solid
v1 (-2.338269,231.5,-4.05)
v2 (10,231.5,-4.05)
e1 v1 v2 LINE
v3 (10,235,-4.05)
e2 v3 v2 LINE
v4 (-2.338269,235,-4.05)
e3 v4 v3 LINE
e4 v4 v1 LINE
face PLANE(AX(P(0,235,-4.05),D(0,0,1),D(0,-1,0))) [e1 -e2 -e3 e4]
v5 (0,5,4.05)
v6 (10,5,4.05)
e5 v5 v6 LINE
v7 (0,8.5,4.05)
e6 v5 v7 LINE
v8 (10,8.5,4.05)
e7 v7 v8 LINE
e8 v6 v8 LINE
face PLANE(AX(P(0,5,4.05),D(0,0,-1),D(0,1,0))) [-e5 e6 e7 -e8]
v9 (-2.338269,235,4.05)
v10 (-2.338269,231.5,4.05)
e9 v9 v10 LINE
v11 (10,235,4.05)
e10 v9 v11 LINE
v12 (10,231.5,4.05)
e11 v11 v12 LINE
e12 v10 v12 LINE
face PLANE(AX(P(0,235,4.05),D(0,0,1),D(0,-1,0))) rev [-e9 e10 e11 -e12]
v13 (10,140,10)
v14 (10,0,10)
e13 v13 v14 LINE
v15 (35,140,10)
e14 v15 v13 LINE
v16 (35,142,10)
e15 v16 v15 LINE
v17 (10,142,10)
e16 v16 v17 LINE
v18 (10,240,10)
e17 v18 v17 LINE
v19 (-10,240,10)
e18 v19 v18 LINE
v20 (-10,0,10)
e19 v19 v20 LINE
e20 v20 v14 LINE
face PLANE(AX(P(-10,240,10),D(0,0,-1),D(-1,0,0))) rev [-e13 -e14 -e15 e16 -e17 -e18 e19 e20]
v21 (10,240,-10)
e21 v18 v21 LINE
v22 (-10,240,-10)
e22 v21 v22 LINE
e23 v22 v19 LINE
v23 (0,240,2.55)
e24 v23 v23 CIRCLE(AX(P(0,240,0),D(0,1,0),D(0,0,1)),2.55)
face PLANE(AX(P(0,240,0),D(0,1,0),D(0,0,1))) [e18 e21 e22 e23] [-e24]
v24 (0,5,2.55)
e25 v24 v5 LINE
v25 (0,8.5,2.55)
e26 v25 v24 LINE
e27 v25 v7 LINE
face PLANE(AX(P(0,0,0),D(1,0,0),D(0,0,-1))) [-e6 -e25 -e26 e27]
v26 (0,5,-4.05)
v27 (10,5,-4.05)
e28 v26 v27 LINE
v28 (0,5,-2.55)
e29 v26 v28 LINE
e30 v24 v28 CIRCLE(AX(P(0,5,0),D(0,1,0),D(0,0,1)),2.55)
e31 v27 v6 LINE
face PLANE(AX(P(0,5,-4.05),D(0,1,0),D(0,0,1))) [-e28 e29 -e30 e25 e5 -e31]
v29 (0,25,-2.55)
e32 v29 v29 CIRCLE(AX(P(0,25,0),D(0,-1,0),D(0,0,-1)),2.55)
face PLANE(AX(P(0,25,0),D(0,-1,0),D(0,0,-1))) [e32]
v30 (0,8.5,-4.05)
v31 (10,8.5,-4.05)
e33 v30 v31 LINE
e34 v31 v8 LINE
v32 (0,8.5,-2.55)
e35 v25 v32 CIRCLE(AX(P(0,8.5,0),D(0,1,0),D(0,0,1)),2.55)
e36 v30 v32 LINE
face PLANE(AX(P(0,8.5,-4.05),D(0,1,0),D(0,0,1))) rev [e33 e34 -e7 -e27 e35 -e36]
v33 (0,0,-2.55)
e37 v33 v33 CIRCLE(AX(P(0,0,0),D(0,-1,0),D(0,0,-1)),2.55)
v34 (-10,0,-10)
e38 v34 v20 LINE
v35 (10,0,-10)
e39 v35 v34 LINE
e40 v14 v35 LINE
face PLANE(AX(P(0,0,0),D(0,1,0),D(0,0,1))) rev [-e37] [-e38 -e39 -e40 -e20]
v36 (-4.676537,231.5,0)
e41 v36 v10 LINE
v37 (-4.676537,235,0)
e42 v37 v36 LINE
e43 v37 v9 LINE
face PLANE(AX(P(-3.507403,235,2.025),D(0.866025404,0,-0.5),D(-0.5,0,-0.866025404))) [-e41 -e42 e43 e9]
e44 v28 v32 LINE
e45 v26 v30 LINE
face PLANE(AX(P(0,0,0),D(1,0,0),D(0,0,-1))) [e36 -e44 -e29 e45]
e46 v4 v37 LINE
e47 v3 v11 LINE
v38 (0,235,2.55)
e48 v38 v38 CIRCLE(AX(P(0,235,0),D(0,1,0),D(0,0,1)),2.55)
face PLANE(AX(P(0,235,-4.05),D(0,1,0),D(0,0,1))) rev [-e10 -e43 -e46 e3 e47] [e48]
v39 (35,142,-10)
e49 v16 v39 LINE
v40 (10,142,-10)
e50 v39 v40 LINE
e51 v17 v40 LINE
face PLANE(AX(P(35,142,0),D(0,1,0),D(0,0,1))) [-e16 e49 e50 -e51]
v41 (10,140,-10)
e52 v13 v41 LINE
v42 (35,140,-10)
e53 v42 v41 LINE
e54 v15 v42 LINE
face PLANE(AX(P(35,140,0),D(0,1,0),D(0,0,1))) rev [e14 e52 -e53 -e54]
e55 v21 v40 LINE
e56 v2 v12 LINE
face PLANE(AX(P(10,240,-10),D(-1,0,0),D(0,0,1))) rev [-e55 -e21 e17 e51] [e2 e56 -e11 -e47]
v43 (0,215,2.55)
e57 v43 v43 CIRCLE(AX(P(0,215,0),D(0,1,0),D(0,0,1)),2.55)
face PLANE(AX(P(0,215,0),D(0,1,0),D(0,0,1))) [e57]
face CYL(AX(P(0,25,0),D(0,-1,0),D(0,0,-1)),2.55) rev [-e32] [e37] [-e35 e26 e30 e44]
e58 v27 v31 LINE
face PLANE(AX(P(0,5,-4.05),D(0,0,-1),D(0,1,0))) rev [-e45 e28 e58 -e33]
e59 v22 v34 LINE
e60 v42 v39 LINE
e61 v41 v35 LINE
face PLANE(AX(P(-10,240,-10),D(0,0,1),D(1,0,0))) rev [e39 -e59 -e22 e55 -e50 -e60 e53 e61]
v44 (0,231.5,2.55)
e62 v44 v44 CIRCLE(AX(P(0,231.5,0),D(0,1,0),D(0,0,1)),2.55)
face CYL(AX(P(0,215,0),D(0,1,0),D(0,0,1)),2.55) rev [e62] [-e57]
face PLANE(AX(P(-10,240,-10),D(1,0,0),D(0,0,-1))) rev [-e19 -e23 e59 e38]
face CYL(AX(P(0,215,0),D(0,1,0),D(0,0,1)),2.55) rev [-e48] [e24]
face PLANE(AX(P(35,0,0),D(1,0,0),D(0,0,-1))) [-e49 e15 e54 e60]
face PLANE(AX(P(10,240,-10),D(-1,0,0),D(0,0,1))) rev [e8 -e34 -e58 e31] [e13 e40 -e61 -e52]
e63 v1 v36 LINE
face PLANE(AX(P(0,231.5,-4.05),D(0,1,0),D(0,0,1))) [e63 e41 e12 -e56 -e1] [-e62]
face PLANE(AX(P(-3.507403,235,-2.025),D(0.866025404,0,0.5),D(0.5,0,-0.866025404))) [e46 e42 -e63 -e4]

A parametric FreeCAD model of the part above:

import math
import FreeCAD as App
import Part
import Sketcher
from FreeCAD import Vector
Q = App.Units.Quantity


def add_polygon(sketch, points):
    """Adds a closed chain of lines whose ends are joined by coincident constraints."""
    first, n = sketch.GeometryCount, len(points)
    for a, b in zip(points, points[1:] + points[:1]):
        sketch.addGeometry(Part.LineSegment(App.Vector(*a, 0), App.Vector(*b, 0)), False)
    for i in range(n):
        sketch.addConstraint(Sketcher.Constraint("Coincident", first + i, 2, first + (i + 1) % n, 1))

doc = App.newDocument("Part")
params = doc.addObject("Spreadsheet::Sheet", "Params")
for row, (alias, value) in enumerate([
    ("sketch1_width", "20 mm"),
    ("pad1_length", "240 mm"),
    ("sketch2_width", "3.5 mm"),
    ("sketch2_height", "8.1 mm"),
    ("pocket1_length", "10 mm"),
    ("sketch3_diameter", "5.1 mm"),
    ("pocket2_length", "25 mm"),
    ("sketch4_radius", "2.55 mm"),
    ("sketch4_height", "1.5 mm"),
    ("pocket3_length", "3.5 mm"),
    ("sketch5_diameter", "5.1 mm"),
    ("pocket4_length", "25 mm"),
    ("sketch6_width", "2 mm"),
    ("sketch6_height", "20 mm"),
    ("pad2_length", "25 mm"),
], start=1):
    params.set(f"A{row}", alias)
    params.set(f"B{row}", "=" + value)
    params.setAlias(f"B{row}", alias)

body = doc.addObject("PartDesign::Body", "Body")

# Sketch on XZ plane
sketch1 = body.newObject("Sketcher::SketchObject", "Sketch")
sketch1.AttachmentSupport = (doc.getObject("XZ_Plane"), [""])
sketch1.MapMode = "FlatFace"
add_polygon(sketch1, [(-10, -10), (-10, 10), (10, 10), (10, -10)])  # lines 0-3
sketch1.addConstraint([
    Sketcher.Constraint("Vertical", 0),
    Sketcher.Constraint("Horizontal", 1),
    Sketcher.Constraint("Vertical", 2),
    Sketcher.Constraint("Horizontal", 3),
    Sketcher.Constraint("Symmetric", 0, 2, 2, 2, -1, 1),
    Sketcher.Constraint("Equal", 3, 0),
    Sketcher.Constraint("DistanceX", 1, 1, 1, 2, 20.0),
])
sketch1.setExpression("Constraints[10]", "Params.sketch1_width")
pad1 = body.newObject("PartDesign::Pad", "Pad")
pad1.Profile = sketch1
pad1.setExpression("Length", "Params.pad1_length")
pad1.Reversed = True

# Sketch on YZ plane
sketch2 = body.newObject("Sketcher::SketchObject", "Sketch001")
sketch2.AttachmentSupport = (doc.getObject("YZ_Plane"), [""])
sketch2.MapMode = "FlatFace"
sketch2.AttachmentOffset = App.Placement(Vector(0, 0, 10), App.Rotation())
add_polygon(sketch2, [(235, 4), (231.5, 4), (231.5, -4), (235, -4)])  # lines 0-3
add_polygon(sketch2, [(8.5, 4), (5, 4), (5, -4), (8.5, -4)])  # lines 4-7
sketch2.addConstraint([
    Sketcher.Constraint("Horizontal", 0),
    Sketcher.Constraint("Vertical", 1),
    Sketcher.Constraint("Horizontal", 2),
    Sketcher.Constraint("Vertical", 3),
    Sketcher.Constraint("Horizontal", 4),
    Sketcher.Constraint("Vertical", 5),
    Sketcher.Constraint("Horizontal", 6),
    Sketcher.Constraint("Vertical", 7),
    Sketcher.Constraint("Horizontal", 3, 2, 4, 2),
    Sketcher.Constraint("Horizontal", 2, 2, 5, 2),
    Sketcher.Constraint("Equal", 2, 4),
    Sketcher.Constraint("DistanceX", 0, 2, 0, 1, 3.5),
    Sketcher.Constraint("DistanceY", 1, 2, 1, 1, 8.1),
    Sketcher.Constraint("DistanceX", -1, 1, 2, 2, 235.0),
    Sketcher.Constraint("DistanceX", -1, 1, 4, 2, 5.0),
    Sketcher.Constraint("DistanceY", -1, 1, 0, 2, 4.05),
])
sketch2.setExpression("Constraints[19]", "Params.sketch2_width")
sketch2.setExpression("Constraints[20]", "Params.sketch2_height")
pocket1 = body.newObject("PartDesign::Pocket", "Pocket")
pocket1.Profile = sketch2
pocket1.setExpression("Length", "Params.pocket1_length")

# Sketch on XZ plane
sketch3 = body.newObject("Sketcher::SketchObject", "Sketch002")
sketch3.AttachmentSupport = (doc.getObject("XZ_Plane"), [""])
sketch3.MapMode = "FlatFace"
sketch3.AttachmentOffset = App.Placement(Vector(0, 0, -240), App.Rotation())
sketch3.addGeometry(Part.Circle(Vector(0, 0, 0), Vector(0, 0, 1), 2.5), False)
sketch3.addConstraint([
    Sketcher.Constraint("Coincident", 0, 3, -1, 1),
    Sketcher.Constraint("Diameter", 0, 5.1),
])
sketch3.setExpression("Constraints[1]", "Params.sketch3_diameter")
pocket2 = body.newObject("PartDesign::Pocket", "Pocket001")
pocket2.Profile = sketch3
pocket2.setExpression("Length", "Params.pocket2_length")
pocket2.Reversed = True

# Sketch on XZ plane
sketch4 = body.newObject("Sketcher::SketchObject", "Sketch003")
sketch4.AttachmentSupport = (doc.getObject("XZ_Plane"), [""])
sketch4.MapMode = "FlatFace"
sketch4.AttachmentOffset = App.Placement(Vector(0, 0, -235), App.Rotation())
sketch4.addGeometry([
    Part.LineSegment(Vector(-2.3, 4, 0), Vector(0, 4, 0)),  # 0
    Part.LineSegment(Vector(0, 4, 0), Vector(0, 2.5, 0)),  # 1
    Part.ArcOfCircle(Part.Circle(Vector(0, 0, 0), Vector(0, 0, 1), 2.5), math.radians(90), math.radians(270)),  # 2
    Part.LineSegment(Vector(0, -2.5, 0), Vector(0, -4, 0)),  # 3
    Part.LineSegment(Vector(0, -4, 0), Vector(-2.3, -4, 0)),  # 4
    Part.LineSegment(Vector(-2.3, -4, 0), Vector(-4.7, 0, 0)),  # 5
    Part.LineSegment(Vector(-4.7, 0, 0), Vector(-2.3, 4, 0)),  # 6
], False)
sketch4.addConstraint([
    Sketcher.Constraint("Coincident", 0, 2, 1, 1),
    Sketcher.Constraint("Coincident", 1, 2, 2, 1),
    Sketcher.Constraint("Coincident", 2, 2, 3, 1),
    Sketcher.Constraint("Coincident", 3, 2, 4, 1),
    Sketcher.Constraint("Coincident", 4, 2, 5, 1),
    Sketcher.Constraint("Coincident", 5, 2, 6, 1),
    Sketcher.Constraint("Coincident", 6, 2, 0, 1),
    Sketcher.Constraint("Horizontal", 0),
    Sketcher.Constraint("Vertical", 1),
    Sketcher.Constraint("Vertical", 3),
    Sketcher.Constraint("Horizontal", 4),
    Sketcher.Constraint("Coincident", 2, 3, -1, 1),
    Sketcher.Constraint("Symmetric", 0, 2, 3, 2, -1, 1),
    Sketcher.Constraint("PointOnObject", 0, 2, -2),
    Sketcher.Constraint("PointOnObject", 5, 2, -1),
    Sketcher.Constraint("Vertical", 4, 2, 6, 2),
    Sketcher.Constraint("Angle", 5, Q("120 deg")),
    Sketcher.Constraint("Radius", 2, 2.55),
    Sketcher.Constraint("DistanceY", 1, 2, 1, 1, 1.5),
    Sketcher.Constraint("DistanceX", 0, 1, 0, 2, 2.338269),
])
sketch4.setExpression("Constraints[17]", "Params.sketch4_radius")
sketch4.setExpression("Constraints[18]", "Params.sketch4_height")
pocket3 = body.newObject("PartDesign::Pocket", "Pocket002")
pocket3.Profile = sketch4
pocket3.setExpression("Length", "Params.pocket3_length")
pocket3.Reversed = True

# Sketch on XZ plane
sketch5 = body.newObject("Sketcher::SketchObject", "Sketch004")
sketch5.AttachmentSupport = (doc.getObject("XZ_Plane"), [""])
sketch5.MapMode = "FlatFace"
sketch5.AttachmentOffset = App.Placement(Vector(0, 0, -25), App.Rotation())
sketch5.addGeometry(Part.Circle(Vector(0, 0, 0), Vector(0, 0, 1), 2.5), False)
sketch5.addConstraint([
    Sketcher.Constraint("Coincident", 0, 3, -1, 1),
    Sketcher.Constraint("Diameter", 0, 5.1),
])
sketch5.setExpression("Constraints[1]", "Params.sketch5_diameter")
pocket4 = body.newObject("PartDesign::Pocket", "Pocket003")
pocket4.Profile = sketch5
pocket4.setExpression("Length", "Params.pocket4_length")
pocket4.Reversed = True

# Sketch on YZ plane
sketch6 = body.newObject("Sketcher::SketchObject", "Sketch005")
sketch6.AttachmentSupport = (doc.getObject("YZ_Plane"), [""])
sketch6.MapMode = "FlatFace"
sketch6.AttachmentOffset = App.Placement(Vector(0, 0, 10), App.Rotation())
add_polygon(sketch6, [(142, 10), (140, 10), (140, -10), (142, -10)])  # lines 0-3
sketch6.addConstraint([
    Sketcher.Constraint("Horizontal", 0),
    Sketcher.Constraint("Vertical", 1),
    Sketcher.Constraint("Horizontal", 2),
    Sketcher.Constraint("Vertical", 3),
    Sketcher.Constraint("DistanceX", 0, 2, 0, 1, 2.0),
    Sketcher.Constraint("DistanceY", 1, 2, 1, 1, 20.0),
    Sketcher.Constraint("DistanceX", -1, 1, 0, 2, 140.0),
    Sketcher.Constraint("DistanceY", -1, 1, 0, 2, 10.0),
])
sketch6.setExpression("Constraints[8]", "Params.sketch6_width")
sketch6.setExpression("Constraints[9]", "Params.sketch6_height")
pad2 = body.newObject("PartDesign::Pad", "Pad001")
pad2.Profile = sketch6
pad2.setExpression("Length", "Params.pad2_length")

doc.recompute()
